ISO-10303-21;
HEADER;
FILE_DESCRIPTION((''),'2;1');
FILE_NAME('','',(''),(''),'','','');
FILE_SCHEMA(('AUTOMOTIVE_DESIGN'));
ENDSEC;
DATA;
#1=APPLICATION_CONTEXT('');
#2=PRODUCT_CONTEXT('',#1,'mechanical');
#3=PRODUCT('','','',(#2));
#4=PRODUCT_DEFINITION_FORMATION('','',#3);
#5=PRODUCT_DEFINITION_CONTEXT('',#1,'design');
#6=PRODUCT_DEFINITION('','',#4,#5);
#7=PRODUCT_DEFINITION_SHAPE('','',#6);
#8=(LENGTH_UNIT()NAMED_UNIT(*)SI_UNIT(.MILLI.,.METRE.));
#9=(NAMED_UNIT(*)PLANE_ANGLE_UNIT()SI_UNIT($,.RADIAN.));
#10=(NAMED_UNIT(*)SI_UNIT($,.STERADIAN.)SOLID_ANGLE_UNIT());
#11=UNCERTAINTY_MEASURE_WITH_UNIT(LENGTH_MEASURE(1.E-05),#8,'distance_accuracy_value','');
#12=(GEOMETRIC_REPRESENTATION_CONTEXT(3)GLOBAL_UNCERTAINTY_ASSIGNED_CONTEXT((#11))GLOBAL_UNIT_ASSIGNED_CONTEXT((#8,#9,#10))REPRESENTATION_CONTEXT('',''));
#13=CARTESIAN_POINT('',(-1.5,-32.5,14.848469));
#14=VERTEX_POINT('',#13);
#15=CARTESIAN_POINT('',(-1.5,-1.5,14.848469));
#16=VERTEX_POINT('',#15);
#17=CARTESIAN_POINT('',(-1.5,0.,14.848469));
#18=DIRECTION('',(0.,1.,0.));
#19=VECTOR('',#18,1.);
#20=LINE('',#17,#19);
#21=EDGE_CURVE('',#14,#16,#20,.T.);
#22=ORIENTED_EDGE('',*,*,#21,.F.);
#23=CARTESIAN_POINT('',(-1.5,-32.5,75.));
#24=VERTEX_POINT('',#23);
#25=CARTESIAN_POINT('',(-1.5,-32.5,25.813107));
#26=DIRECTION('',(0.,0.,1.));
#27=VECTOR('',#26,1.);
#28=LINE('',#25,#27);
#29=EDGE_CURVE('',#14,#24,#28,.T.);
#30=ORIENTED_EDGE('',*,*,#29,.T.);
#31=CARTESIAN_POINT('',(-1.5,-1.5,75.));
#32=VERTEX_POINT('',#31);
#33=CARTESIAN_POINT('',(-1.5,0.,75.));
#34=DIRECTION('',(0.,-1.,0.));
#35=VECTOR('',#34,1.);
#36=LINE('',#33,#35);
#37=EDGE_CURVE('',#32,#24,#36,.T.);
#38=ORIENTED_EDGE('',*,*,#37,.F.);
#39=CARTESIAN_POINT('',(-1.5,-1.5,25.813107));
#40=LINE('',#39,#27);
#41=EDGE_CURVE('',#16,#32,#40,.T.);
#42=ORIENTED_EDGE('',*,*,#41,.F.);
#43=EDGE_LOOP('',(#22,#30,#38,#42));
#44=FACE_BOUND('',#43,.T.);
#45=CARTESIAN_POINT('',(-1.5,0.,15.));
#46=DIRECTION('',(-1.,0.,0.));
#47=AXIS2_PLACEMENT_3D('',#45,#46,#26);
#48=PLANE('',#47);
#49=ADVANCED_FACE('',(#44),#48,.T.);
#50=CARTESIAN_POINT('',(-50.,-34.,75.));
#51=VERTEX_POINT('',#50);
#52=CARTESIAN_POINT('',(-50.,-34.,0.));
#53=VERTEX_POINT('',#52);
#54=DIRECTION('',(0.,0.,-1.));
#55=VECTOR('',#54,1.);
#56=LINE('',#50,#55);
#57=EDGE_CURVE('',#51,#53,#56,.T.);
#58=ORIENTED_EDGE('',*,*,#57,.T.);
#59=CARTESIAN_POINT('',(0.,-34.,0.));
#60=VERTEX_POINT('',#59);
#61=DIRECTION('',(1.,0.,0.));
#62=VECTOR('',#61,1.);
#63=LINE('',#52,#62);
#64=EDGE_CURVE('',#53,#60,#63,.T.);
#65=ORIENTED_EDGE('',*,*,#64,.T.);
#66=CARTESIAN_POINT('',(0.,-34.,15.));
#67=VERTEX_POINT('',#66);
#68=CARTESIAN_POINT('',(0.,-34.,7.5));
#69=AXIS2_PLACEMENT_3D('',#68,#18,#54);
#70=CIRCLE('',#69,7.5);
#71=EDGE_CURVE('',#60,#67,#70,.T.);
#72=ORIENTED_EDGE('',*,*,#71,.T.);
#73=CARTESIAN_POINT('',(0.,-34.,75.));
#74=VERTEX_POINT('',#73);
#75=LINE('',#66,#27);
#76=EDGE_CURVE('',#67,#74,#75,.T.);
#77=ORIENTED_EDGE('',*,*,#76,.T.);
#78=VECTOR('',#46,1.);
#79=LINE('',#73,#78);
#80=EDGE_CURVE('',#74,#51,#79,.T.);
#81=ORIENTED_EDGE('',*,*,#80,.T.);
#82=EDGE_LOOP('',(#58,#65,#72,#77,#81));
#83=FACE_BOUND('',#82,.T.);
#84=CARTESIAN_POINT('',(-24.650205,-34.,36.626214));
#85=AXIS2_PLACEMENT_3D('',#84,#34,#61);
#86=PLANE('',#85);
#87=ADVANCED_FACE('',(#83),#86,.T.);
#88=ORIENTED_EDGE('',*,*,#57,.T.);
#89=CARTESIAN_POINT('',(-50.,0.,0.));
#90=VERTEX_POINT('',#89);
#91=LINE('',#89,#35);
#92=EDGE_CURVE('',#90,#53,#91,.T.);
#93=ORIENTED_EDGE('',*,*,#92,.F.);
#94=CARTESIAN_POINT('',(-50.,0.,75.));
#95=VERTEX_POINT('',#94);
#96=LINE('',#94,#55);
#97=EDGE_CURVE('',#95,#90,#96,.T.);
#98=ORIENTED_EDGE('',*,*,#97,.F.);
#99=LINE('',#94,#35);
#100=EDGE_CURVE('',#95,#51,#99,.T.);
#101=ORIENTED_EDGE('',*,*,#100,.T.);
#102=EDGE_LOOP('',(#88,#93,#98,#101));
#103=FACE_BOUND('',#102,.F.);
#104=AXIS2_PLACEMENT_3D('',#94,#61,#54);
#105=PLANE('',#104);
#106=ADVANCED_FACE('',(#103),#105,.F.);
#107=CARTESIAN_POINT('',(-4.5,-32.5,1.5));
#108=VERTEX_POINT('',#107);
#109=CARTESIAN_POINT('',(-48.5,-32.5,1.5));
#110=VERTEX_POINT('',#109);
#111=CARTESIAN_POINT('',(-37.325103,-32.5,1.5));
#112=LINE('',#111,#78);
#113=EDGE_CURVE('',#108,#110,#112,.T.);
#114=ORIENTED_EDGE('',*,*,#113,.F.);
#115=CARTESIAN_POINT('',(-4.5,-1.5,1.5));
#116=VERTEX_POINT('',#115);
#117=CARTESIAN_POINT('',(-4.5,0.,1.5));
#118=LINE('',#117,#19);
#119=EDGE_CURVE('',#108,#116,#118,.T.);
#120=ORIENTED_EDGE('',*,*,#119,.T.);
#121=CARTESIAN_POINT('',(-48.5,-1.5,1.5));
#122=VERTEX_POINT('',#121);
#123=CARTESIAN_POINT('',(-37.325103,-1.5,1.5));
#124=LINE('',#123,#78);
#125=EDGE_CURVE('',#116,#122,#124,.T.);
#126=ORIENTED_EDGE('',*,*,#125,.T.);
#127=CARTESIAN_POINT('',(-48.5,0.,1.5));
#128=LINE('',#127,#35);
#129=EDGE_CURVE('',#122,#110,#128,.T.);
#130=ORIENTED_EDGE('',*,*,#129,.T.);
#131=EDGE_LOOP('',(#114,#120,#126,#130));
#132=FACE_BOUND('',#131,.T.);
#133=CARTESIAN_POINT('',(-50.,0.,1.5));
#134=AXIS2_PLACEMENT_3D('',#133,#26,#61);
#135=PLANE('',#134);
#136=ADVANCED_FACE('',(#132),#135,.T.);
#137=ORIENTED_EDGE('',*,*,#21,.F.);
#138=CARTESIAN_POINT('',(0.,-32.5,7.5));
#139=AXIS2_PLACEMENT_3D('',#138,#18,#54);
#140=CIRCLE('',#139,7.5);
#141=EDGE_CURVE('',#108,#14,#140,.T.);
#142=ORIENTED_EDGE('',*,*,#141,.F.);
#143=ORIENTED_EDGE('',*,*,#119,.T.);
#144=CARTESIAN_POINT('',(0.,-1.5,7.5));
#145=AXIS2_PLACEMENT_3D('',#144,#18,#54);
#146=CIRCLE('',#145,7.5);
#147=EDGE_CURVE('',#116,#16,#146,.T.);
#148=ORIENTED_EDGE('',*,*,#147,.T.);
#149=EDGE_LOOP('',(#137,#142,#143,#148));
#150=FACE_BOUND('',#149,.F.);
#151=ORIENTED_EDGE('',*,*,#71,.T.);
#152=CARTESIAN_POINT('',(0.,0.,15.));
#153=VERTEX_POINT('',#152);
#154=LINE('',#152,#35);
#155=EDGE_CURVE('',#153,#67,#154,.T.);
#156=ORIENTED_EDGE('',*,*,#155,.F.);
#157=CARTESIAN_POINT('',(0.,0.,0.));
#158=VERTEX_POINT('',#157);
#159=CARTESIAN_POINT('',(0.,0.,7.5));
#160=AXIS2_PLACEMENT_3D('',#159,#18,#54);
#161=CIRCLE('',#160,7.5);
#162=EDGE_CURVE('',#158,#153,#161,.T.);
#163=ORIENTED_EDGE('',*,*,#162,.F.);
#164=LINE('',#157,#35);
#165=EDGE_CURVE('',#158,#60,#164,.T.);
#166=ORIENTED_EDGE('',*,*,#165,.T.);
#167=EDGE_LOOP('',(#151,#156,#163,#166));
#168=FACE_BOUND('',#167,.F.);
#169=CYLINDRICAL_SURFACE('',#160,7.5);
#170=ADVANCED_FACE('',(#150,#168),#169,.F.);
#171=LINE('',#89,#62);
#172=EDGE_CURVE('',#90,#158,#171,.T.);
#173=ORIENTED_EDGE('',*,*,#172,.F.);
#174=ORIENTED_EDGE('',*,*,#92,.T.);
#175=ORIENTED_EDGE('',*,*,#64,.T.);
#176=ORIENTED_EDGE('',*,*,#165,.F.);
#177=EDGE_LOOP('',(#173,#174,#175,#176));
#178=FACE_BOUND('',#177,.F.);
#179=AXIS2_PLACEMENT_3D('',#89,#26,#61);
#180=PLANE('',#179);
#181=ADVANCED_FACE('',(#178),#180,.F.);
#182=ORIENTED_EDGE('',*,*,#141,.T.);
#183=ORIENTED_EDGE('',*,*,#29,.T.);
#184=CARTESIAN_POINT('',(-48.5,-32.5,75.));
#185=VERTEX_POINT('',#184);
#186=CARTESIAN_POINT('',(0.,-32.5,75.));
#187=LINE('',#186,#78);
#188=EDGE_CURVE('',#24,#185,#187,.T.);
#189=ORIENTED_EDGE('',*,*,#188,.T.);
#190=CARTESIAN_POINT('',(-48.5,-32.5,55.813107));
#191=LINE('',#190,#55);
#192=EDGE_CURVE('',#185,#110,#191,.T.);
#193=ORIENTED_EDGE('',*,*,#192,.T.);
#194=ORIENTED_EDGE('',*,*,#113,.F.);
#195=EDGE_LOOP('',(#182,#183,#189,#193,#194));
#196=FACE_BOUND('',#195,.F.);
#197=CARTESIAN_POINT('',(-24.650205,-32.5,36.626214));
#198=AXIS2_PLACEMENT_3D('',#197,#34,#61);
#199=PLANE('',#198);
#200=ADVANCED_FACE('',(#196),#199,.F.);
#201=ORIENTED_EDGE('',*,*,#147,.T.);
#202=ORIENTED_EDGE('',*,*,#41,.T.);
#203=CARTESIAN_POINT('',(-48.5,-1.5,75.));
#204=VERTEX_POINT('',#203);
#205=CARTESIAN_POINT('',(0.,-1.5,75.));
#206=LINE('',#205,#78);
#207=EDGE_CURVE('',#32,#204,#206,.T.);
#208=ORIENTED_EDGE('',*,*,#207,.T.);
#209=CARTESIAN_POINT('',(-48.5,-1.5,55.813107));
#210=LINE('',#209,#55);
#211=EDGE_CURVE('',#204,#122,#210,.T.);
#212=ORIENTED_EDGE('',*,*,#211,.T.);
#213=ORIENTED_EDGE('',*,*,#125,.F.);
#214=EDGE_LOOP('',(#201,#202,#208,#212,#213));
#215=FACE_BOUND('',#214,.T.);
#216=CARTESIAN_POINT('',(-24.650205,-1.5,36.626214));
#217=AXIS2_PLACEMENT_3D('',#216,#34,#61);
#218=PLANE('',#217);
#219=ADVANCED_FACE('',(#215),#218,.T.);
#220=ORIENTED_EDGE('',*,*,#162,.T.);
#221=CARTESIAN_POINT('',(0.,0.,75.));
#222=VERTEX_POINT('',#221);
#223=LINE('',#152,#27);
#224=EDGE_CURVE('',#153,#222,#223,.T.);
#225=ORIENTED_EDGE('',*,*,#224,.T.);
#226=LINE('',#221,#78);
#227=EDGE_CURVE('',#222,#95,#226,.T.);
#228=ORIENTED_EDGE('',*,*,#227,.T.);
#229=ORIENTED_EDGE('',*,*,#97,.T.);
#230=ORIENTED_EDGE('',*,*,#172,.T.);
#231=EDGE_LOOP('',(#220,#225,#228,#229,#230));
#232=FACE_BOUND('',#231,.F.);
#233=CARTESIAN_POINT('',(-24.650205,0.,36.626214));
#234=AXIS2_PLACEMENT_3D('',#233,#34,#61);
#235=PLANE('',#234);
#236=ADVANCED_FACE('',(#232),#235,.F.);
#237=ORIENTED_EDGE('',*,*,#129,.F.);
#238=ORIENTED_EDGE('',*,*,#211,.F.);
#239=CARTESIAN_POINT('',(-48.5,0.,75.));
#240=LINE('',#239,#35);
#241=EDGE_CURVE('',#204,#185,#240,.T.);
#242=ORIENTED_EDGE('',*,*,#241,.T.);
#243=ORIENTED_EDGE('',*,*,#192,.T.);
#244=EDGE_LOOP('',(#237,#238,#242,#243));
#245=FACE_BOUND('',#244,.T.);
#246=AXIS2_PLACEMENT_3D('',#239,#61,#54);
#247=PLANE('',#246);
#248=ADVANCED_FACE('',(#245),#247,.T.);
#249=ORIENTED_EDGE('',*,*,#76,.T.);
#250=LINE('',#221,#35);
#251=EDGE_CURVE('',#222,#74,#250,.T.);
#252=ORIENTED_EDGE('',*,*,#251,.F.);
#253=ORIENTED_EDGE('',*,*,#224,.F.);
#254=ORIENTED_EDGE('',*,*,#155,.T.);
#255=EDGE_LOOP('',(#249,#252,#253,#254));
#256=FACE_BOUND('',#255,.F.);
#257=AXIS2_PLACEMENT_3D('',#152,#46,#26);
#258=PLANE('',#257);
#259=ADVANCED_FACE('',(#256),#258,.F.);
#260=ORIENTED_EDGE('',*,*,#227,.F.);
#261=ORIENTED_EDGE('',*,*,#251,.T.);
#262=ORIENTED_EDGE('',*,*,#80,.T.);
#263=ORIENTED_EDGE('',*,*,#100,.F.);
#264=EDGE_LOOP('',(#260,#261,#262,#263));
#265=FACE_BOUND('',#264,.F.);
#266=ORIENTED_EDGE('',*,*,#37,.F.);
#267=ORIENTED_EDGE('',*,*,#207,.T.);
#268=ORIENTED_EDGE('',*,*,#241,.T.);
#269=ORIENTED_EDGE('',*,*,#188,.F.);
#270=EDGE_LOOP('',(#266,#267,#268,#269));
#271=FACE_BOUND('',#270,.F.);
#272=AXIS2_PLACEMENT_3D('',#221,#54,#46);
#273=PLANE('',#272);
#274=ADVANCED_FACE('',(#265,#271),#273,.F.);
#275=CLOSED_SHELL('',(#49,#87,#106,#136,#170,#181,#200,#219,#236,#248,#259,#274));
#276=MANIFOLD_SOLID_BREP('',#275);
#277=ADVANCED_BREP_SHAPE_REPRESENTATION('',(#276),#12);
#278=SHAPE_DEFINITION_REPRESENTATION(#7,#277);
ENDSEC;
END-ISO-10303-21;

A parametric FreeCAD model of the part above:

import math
import FreeCAD as App
import Part
import Sketcher


def faces_at(feature, points):
    """Names of the faces that lie closest to the given points."""
    faces = feature.Shape.Faces
    near = lambda p: min(range(len(faces)), key=lambda i: faces[i].distToShape(Part.Vertex(*p))[0])
    return sorted({f"Face{near(p) + 1}" for p in points})

doc = App.newDocument("Part")
body = doc.addObject("PartDesign::Body", "Body")

# Sketch on XZ plane
sketch1 = body.newObject("Sketcher::SketchObject", "Sketch")
sketch1.AttachmentSupport = (doc.getObject("XZ_Plane"), [""])
sketch1.MapMode = "FlatFace"
sketch1.addGeometry(Part.LineSegment(App.Vector(0, 75, 0), App.Vector(-50, 75, 0)), False)
sketch1.addGeometry(Part.LineSegment(App.Vector(-50, 75, 0), App.Vector(-50, 0, 0)), False)
sketch1.addGeometry(Part.LineSegment(App.Vector(-50, 0, 0), App.Vector(0, 0, 0)), False)
sketch1.addGeometry(Part.ArcOfCircle(Part.Circle(App.Vector(0, 8, 0), App.Vector(0, 0, 1), 8), math.radians(90), math.radians(270)), False)
sketch1.addGeometry(Part.LineSegment(App.Vector(0, 15, 0), App.Vector(0, 75, 0)), False)
sketch1.addConstraint(Sketcher.Constraint("Coincident", 0, 2, 1, 1))
sketch1.addConstraint(Sketcher.Constraint("Coincident", 1, 2, 2, 1))
sketch1.addConstraint(Sketcher.Constraint("Tangent", 2, 2, 3, 2))
sketch1.addConstraint(Sketcher.Constraint("Coincident", 3, 1, 4, 1))
sketch1.addConstraint(Sketcher.Constraint("Coincident", 4, 2, 0, 1))
sketch1.addConstraint(Sketcher.Constraint("Horizontal", 0))
sketch1.addConstraint(Sketcher.Constraint("Vertical", 1))
sketch1.addConstraint(Sketcher.Constraint("Horizontal", 2))
sketch1.addConstraint(Sketcher.Constraint("Vertical", 4))
sketch1.addConstraint(Sketcher.Constraint("Coincident", 2, 2, -1, 1))
sketch1.addConstraint(Sketcher.Constraint("PointOnObject", 3, 1, -2))
sketch1.addConstraint(Sketcher.Constraint("Radius", 3, 7.5))
sketch1.addConstraint(Sketcher.Constraint("DistanceX", 0, 2, 0, 1, 50.0))
sketch1.addConstraint(Sketcher.Constraint("DistanceY", 1, 2, 1, 1, 75.0))
pad1 = body.newObject("PartDesign::Pad", "Pad")
pad1.Profile = sketch1
pad1.Length = 34
doc.recompute()

thickness = body.newObject("PartDesign::Thickness", "Thickness")
thickness.Base = (pad1, faces_at(pad1, [(-25, -17, 75), (-7.5, -17, 7.5)]))
thickness.Value = 1.5
thickness.Reversed = True
thickness.Join = "Arc"

doc.recompute()
